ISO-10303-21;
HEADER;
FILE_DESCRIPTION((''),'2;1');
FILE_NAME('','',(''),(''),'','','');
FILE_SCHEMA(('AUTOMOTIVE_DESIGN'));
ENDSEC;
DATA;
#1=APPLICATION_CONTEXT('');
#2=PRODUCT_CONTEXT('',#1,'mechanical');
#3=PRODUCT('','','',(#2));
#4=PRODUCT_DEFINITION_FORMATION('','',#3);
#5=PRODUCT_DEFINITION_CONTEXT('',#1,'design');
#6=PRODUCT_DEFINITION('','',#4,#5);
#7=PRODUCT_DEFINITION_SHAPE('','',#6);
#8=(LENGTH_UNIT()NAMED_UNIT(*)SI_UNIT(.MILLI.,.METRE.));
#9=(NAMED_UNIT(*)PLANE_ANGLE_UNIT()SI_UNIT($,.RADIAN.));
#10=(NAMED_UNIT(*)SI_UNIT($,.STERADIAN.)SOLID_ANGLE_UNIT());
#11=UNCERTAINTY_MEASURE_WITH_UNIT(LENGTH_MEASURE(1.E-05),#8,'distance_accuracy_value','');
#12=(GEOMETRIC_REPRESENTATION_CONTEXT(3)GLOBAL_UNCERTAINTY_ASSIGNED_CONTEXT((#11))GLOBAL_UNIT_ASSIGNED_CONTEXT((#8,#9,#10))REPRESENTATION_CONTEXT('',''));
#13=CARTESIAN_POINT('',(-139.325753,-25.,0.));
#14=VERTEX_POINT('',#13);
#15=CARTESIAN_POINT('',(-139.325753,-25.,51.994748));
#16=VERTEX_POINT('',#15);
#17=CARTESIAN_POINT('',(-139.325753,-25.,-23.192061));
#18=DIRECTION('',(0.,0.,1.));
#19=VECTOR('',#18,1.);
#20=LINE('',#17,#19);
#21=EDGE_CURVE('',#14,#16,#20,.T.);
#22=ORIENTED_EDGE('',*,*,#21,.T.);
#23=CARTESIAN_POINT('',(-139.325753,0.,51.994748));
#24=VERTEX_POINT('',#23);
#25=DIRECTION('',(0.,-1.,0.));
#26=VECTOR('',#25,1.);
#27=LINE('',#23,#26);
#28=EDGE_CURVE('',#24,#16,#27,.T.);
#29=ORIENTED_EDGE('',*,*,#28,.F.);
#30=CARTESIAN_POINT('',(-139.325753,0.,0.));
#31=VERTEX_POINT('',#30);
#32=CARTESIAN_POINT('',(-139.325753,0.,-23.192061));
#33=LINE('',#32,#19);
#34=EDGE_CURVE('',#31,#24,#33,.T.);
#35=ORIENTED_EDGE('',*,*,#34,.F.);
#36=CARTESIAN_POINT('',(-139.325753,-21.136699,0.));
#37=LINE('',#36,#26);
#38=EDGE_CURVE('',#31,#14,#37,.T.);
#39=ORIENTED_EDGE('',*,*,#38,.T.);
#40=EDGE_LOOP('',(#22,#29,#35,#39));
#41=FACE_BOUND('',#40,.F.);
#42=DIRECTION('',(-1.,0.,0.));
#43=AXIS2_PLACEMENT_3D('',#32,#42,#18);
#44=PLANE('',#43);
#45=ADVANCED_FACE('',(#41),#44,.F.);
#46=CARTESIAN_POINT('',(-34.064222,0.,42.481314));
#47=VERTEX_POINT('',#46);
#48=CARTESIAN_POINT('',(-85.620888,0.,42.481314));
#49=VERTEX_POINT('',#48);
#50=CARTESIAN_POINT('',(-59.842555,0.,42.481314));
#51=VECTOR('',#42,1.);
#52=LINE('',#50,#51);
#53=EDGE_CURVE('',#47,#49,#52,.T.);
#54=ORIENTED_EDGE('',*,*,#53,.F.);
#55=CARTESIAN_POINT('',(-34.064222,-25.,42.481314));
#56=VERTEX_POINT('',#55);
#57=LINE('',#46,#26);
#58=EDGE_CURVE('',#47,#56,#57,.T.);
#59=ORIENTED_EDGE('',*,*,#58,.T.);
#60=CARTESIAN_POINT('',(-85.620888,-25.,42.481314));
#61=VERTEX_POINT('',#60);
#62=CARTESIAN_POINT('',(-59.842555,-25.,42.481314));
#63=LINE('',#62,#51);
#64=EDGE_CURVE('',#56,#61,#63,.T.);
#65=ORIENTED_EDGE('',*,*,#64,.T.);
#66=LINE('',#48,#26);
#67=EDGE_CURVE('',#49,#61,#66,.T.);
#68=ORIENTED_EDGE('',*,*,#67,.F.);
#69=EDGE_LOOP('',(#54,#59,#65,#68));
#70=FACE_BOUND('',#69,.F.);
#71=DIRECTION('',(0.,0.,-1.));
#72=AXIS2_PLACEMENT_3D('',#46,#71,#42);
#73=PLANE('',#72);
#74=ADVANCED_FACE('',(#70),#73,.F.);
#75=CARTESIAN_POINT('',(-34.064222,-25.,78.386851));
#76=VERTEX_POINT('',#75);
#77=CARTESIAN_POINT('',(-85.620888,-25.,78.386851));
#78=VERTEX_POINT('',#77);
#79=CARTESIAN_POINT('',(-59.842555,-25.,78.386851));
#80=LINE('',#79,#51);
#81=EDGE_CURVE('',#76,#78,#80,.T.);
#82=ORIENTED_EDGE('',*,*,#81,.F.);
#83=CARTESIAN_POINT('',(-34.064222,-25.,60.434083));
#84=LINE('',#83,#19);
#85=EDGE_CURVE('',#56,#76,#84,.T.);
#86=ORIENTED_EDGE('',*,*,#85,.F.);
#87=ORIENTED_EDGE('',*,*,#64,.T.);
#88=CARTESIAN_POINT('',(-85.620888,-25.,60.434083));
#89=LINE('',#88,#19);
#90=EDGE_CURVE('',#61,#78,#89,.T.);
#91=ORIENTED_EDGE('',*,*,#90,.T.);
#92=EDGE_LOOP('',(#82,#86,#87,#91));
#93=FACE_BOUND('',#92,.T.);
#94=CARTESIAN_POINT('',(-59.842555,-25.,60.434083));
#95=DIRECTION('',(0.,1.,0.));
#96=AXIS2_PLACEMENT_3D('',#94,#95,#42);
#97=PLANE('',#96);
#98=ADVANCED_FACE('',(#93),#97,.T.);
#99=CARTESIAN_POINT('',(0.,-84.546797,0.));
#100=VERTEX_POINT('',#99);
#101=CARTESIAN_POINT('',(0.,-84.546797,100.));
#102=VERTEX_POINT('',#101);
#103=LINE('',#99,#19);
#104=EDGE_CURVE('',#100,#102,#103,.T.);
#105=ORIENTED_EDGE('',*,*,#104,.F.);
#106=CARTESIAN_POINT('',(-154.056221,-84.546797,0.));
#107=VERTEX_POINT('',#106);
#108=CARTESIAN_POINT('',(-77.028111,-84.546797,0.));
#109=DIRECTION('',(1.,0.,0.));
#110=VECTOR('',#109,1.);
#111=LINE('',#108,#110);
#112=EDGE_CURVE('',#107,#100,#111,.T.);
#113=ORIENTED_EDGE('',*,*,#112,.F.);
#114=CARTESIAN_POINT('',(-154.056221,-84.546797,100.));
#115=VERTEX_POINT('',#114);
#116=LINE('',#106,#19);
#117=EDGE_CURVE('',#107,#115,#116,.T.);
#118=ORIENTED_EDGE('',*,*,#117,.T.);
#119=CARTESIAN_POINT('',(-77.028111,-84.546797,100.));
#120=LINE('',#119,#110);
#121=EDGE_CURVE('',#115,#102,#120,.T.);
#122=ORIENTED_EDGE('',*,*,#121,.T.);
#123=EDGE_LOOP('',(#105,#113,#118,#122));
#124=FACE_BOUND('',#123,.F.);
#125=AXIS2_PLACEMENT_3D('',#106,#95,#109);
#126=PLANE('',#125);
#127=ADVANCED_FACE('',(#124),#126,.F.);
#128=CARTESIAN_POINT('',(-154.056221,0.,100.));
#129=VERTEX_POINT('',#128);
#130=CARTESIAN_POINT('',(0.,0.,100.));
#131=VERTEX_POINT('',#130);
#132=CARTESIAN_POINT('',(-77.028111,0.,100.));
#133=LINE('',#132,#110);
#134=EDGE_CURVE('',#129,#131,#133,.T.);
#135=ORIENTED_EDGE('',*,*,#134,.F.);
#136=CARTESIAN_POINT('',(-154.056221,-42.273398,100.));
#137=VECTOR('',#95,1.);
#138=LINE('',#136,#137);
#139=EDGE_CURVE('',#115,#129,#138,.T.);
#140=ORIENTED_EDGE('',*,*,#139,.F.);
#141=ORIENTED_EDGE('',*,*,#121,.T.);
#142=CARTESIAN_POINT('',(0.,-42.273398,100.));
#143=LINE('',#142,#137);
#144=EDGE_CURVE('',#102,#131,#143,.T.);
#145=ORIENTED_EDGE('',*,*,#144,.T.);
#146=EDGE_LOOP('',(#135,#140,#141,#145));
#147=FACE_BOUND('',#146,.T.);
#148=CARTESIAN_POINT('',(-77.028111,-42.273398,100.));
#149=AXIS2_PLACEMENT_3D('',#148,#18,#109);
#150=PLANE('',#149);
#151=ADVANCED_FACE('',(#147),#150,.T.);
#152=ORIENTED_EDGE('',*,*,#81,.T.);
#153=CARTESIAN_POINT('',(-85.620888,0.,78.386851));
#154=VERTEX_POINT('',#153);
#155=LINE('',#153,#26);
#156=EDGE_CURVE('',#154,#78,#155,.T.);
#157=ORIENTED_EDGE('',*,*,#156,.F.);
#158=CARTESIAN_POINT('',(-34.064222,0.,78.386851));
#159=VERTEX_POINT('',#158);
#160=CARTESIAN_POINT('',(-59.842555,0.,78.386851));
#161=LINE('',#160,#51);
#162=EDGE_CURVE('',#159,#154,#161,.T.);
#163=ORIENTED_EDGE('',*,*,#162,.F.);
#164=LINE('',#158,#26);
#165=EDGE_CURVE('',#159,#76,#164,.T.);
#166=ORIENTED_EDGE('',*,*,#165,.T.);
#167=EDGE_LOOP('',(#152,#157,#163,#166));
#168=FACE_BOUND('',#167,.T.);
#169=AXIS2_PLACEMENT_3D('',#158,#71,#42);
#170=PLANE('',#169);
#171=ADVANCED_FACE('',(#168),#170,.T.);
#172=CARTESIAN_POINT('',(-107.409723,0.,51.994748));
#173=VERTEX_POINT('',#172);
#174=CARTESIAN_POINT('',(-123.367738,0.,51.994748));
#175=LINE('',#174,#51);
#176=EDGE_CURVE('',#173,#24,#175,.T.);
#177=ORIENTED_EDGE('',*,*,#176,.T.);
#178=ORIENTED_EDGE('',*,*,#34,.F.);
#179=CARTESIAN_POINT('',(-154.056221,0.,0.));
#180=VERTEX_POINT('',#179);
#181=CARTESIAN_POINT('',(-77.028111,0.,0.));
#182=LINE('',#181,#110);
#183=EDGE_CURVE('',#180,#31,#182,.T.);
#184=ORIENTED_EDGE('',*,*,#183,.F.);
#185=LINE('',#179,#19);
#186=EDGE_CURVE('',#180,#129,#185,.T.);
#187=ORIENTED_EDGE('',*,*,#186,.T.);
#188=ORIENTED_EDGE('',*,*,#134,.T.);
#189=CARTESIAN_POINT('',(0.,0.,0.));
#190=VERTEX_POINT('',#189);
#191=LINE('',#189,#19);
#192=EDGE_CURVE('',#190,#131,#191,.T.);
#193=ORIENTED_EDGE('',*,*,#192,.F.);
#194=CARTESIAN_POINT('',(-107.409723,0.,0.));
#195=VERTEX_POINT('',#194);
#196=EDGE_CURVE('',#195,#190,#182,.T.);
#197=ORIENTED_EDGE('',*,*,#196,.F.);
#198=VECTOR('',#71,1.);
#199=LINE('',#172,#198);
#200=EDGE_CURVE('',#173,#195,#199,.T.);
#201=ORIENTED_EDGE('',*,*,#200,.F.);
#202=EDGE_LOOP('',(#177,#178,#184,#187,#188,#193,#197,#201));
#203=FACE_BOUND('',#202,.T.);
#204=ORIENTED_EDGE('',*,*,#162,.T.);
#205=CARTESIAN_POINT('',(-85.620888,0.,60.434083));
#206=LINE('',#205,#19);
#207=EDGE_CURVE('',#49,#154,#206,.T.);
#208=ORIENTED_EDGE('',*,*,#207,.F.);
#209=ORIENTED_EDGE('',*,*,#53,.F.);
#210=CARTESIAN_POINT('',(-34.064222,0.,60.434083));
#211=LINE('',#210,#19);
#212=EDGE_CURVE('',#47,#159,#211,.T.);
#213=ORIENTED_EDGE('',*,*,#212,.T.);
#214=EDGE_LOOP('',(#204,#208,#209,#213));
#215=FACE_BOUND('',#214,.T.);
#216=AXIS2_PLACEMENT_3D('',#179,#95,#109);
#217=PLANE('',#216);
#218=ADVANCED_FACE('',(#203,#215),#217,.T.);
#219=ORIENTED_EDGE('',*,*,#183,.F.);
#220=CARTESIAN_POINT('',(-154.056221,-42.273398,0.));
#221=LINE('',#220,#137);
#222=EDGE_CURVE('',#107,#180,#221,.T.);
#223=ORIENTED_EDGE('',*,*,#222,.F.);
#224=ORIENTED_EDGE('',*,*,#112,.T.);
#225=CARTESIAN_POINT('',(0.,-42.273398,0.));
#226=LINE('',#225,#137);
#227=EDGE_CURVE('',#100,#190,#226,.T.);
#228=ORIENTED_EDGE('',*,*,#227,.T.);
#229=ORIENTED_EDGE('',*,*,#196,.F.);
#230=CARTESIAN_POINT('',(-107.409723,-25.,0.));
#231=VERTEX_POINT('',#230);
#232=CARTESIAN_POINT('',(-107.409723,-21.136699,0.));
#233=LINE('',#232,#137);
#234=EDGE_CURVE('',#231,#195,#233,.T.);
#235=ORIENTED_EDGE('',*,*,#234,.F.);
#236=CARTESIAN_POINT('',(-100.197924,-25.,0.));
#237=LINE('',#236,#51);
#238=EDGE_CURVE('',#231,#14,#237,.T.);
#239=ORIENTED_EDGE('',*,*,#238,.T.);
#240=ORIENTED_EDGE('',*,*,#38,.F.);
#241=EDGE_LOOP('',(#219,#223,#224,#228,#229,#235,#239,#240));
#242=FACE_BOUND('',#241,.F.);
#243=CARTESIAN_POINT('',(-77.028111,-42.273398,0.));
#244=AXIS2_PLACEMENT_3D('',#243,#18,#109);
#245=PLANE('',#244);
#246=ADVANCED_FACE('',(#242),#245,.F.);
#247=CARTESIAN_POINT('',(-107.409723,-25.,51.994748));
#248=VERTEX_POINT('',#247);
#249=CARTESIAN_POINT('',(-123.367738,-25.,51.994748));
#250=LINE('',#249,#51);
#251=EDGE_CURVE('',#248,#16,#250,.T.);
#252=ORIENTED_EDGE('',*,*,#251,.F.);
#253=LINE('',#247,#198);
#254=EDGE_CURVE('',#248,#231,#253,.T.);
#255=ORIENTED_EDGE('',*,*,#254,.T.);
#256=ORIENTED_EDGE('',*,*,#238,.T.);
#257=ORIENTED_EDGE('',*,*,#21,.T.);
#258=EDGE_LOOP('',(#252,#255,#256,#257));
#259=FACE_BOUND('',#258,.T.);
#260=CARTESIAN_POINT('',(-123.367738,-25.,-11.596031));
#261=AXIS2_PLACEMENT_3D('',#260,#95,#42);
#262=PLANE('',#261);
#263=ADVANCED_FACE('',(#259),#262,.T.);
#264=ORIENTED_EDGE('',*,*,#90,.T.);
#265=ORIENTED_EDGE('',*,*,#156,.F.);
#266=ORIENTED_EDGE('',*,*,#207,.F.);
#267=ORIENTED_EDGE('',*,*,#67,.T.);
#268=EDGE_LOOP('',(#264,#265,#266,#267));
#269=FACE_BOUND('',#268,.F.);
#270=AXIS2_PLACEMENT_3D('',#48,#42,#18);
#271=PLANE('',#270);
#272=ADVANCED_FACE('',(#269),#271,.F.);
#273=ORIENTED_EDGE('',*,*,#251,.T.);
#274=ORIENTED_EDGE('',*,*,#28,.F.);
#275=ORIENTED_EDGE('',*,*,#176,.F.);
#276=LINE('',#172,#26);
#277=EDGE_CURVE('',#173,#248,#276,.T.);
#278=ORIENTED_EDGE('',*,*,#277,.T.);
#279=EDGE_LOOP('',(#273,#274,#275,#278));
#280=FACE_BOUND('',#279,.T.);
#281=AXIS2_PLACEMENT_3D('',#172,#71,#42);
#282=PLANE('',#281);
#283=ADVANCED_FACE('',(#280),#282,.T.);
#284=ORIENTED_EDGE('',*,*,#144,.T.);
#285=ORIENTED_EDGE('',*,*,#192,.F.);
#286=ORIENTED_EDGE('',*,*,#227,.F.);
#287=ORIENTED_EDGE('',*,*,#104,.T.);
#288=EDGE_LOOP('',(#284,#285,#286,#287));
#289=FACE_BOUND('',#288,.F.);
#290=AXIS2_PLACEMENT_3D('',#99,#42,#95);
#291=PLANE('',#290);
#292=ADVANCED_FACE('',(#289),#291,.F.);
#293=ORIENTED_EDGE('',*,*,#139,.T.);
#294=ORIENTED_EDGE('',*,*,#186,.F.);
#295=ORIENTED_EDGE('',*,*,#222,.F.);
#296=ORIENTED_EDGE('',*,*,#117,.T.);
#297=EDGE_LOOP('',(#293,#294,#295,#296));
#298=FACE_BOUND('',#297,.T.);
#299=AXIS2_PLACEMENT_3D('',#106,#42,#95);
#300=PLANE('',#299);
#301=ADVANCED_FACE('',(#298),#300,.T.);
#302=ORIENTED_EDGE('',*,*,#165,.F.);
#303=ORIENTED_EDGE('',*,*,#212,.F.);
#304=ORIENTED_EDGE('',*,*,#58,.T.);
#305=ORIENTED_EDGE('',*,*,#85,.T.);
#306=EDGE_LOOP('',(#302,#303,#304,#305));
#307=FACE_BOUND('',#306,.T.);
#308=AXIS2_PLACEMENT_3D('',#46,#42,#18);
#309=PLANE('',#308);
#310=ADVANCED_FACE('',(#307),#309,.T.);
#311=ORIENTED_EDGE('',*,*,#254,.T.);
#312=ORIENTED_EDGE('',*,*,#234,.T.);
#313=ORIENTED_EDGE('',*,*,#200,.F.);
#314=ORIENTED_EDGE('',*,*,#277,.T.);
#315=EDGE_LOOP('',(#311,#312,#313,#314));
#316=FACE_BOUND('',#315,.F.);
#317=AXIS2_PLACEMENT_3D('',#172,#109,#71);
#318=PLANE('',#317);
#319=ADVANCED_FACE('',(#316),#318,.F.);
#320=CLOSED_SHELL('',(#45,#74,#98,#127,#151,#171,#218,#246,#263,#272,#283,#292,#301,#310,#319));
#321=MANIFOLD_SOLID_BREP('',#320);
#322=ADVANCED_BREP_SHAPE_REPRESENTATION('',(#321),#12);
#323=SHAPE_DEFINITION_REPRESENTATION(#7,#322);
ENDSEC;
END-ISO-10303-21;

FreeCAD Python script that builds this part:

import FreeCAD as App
import Part
import Sketcher
Q = App.Units.Quantity


def add_polygon(sketch, points):
    """Adds a closed chain of lines whose ends are joined by coincident constraints."""
    first, n = sketch.GeometryCount, len(points)
    for a, b in zip(points, points[1:] + points[:1]):
        sketch.addGeometry(Part.LineSegment(App.Vector(*a, 0), App.Vector(*b, 0)), False)
    for i in range(n):
        sketch.addConstraint(Sketcher.Constraint("Coincident", first + i, 2, first + (i + 1) % n, 1))

doc = App.newDocument("Part")
body = doc.addObject("PartDesign::Body", "Body")

# Sketch on XY plane
sketch1 = body.newObject("Sketcher::SketchObject", "Sketch")
sketch1.AttachmentSupport = (doc.getObject("XY_Plane"), [""])
sketch1.MapMode = "FlatFace"
add_polygon(sketch1, [(-154.056221, 0), (-154.056221, -84.546797), (0, -84.546797), (0, 0)])  # lines 0-3
sketch1.addConstraint([
    Sketcher.Constraint("Vertical", 0),
    Sketcher.Constraint("Horizontal", 1),
    Sketcher.Constraint("Vertical", 2),
    Sketcher.Constraint("Horizontal", 3),
    Sketcher.Constraint("Coincident", 2, 2, -1, 1),
    Sketcher.Constraint("DistanceX", 1, 1, 1, 2, Q("154.056221 mm")),
    Sketcher.Constraint("DistanceY", 0, 2, 0, 1, Q("84.546797 mm")),
])
pad1 = body.newObject("PartDesign::Pad", "Pad")
pad1.Profile = sketch1
pad1.Length = 100

# Sketch on XZ plane
sketch2 = body.newObject("Sketcher::SketchObject", "Sketch001")
sketch2.AttachmentSupport = (doc.getObject("XZ_Plane"), [""])
sketch2.MapMode = "FlatFace"
add_polygon(sketch2, [(-107.409723, -23.192061), (-139.325753, -23.192061), (-139.325753, 51.994748), (-107.409723, 51.994748)])  # lines 0-3
add_polygon(sketch2, [(-34.064222, 78.386851), (-34.064222, 42.481314), (-85.620888, 42.481314), (-85.620888, 78.386851)])  # lines 4-7
sketch2.addConstraint([
    Sketcher.Constraint("Horizontal", 0),
    Sketcher.Constraint("Vertical", 1),
    Sketcher.Constraint("Horizontal", 2),
    Sketcher.Constraint("Vertical", 3),
    Sketcher.Constraint("Vertical", 4),
    Sketcher.Constraint("Horizontal", 5),
    Sketcher.Constraint("Vertical", 6),
    Sketcher.Constraint("Horizontal", 7),
    Sketcher.Constraint("DistanceX", 0, 2, 0, 1, Q("31.91603 mm")),
    Sketcher.Constraint("DistanceY", 1, 1, 1, 2, Q("75.18681 mm")),
    Sketcher.Constraint("DistanceX", 2, 2, 4, 2, Q("73.345501 mm")),
    Sketcher.Constraint("DistanceX", 5, 2, 5, 1, Q("51.556665 mm")),
    Sketcher.Constraint("DistanceY", 4, 2, 4, 1, Q("35.905536 mm")),
    Sketcher.Constraint("DistanceY", 0, 2, -1, 1, Q("23.192061 mm")),
    Sketcher.Constraint("DistanceY", -1, 1, 6, 2, Q("78.386851 mm")),
    Sketcher.Constraint("DistanceX", 0, 2, -1, 1, Q("139.325753 mm")),
])
pocket1 = body.newObject("PartDesign::Pocket", "Pocket")
pocket1.Profile = sketch2
pocket1.Length = 25
pocket1.Reversed = True

doc.recompute()
